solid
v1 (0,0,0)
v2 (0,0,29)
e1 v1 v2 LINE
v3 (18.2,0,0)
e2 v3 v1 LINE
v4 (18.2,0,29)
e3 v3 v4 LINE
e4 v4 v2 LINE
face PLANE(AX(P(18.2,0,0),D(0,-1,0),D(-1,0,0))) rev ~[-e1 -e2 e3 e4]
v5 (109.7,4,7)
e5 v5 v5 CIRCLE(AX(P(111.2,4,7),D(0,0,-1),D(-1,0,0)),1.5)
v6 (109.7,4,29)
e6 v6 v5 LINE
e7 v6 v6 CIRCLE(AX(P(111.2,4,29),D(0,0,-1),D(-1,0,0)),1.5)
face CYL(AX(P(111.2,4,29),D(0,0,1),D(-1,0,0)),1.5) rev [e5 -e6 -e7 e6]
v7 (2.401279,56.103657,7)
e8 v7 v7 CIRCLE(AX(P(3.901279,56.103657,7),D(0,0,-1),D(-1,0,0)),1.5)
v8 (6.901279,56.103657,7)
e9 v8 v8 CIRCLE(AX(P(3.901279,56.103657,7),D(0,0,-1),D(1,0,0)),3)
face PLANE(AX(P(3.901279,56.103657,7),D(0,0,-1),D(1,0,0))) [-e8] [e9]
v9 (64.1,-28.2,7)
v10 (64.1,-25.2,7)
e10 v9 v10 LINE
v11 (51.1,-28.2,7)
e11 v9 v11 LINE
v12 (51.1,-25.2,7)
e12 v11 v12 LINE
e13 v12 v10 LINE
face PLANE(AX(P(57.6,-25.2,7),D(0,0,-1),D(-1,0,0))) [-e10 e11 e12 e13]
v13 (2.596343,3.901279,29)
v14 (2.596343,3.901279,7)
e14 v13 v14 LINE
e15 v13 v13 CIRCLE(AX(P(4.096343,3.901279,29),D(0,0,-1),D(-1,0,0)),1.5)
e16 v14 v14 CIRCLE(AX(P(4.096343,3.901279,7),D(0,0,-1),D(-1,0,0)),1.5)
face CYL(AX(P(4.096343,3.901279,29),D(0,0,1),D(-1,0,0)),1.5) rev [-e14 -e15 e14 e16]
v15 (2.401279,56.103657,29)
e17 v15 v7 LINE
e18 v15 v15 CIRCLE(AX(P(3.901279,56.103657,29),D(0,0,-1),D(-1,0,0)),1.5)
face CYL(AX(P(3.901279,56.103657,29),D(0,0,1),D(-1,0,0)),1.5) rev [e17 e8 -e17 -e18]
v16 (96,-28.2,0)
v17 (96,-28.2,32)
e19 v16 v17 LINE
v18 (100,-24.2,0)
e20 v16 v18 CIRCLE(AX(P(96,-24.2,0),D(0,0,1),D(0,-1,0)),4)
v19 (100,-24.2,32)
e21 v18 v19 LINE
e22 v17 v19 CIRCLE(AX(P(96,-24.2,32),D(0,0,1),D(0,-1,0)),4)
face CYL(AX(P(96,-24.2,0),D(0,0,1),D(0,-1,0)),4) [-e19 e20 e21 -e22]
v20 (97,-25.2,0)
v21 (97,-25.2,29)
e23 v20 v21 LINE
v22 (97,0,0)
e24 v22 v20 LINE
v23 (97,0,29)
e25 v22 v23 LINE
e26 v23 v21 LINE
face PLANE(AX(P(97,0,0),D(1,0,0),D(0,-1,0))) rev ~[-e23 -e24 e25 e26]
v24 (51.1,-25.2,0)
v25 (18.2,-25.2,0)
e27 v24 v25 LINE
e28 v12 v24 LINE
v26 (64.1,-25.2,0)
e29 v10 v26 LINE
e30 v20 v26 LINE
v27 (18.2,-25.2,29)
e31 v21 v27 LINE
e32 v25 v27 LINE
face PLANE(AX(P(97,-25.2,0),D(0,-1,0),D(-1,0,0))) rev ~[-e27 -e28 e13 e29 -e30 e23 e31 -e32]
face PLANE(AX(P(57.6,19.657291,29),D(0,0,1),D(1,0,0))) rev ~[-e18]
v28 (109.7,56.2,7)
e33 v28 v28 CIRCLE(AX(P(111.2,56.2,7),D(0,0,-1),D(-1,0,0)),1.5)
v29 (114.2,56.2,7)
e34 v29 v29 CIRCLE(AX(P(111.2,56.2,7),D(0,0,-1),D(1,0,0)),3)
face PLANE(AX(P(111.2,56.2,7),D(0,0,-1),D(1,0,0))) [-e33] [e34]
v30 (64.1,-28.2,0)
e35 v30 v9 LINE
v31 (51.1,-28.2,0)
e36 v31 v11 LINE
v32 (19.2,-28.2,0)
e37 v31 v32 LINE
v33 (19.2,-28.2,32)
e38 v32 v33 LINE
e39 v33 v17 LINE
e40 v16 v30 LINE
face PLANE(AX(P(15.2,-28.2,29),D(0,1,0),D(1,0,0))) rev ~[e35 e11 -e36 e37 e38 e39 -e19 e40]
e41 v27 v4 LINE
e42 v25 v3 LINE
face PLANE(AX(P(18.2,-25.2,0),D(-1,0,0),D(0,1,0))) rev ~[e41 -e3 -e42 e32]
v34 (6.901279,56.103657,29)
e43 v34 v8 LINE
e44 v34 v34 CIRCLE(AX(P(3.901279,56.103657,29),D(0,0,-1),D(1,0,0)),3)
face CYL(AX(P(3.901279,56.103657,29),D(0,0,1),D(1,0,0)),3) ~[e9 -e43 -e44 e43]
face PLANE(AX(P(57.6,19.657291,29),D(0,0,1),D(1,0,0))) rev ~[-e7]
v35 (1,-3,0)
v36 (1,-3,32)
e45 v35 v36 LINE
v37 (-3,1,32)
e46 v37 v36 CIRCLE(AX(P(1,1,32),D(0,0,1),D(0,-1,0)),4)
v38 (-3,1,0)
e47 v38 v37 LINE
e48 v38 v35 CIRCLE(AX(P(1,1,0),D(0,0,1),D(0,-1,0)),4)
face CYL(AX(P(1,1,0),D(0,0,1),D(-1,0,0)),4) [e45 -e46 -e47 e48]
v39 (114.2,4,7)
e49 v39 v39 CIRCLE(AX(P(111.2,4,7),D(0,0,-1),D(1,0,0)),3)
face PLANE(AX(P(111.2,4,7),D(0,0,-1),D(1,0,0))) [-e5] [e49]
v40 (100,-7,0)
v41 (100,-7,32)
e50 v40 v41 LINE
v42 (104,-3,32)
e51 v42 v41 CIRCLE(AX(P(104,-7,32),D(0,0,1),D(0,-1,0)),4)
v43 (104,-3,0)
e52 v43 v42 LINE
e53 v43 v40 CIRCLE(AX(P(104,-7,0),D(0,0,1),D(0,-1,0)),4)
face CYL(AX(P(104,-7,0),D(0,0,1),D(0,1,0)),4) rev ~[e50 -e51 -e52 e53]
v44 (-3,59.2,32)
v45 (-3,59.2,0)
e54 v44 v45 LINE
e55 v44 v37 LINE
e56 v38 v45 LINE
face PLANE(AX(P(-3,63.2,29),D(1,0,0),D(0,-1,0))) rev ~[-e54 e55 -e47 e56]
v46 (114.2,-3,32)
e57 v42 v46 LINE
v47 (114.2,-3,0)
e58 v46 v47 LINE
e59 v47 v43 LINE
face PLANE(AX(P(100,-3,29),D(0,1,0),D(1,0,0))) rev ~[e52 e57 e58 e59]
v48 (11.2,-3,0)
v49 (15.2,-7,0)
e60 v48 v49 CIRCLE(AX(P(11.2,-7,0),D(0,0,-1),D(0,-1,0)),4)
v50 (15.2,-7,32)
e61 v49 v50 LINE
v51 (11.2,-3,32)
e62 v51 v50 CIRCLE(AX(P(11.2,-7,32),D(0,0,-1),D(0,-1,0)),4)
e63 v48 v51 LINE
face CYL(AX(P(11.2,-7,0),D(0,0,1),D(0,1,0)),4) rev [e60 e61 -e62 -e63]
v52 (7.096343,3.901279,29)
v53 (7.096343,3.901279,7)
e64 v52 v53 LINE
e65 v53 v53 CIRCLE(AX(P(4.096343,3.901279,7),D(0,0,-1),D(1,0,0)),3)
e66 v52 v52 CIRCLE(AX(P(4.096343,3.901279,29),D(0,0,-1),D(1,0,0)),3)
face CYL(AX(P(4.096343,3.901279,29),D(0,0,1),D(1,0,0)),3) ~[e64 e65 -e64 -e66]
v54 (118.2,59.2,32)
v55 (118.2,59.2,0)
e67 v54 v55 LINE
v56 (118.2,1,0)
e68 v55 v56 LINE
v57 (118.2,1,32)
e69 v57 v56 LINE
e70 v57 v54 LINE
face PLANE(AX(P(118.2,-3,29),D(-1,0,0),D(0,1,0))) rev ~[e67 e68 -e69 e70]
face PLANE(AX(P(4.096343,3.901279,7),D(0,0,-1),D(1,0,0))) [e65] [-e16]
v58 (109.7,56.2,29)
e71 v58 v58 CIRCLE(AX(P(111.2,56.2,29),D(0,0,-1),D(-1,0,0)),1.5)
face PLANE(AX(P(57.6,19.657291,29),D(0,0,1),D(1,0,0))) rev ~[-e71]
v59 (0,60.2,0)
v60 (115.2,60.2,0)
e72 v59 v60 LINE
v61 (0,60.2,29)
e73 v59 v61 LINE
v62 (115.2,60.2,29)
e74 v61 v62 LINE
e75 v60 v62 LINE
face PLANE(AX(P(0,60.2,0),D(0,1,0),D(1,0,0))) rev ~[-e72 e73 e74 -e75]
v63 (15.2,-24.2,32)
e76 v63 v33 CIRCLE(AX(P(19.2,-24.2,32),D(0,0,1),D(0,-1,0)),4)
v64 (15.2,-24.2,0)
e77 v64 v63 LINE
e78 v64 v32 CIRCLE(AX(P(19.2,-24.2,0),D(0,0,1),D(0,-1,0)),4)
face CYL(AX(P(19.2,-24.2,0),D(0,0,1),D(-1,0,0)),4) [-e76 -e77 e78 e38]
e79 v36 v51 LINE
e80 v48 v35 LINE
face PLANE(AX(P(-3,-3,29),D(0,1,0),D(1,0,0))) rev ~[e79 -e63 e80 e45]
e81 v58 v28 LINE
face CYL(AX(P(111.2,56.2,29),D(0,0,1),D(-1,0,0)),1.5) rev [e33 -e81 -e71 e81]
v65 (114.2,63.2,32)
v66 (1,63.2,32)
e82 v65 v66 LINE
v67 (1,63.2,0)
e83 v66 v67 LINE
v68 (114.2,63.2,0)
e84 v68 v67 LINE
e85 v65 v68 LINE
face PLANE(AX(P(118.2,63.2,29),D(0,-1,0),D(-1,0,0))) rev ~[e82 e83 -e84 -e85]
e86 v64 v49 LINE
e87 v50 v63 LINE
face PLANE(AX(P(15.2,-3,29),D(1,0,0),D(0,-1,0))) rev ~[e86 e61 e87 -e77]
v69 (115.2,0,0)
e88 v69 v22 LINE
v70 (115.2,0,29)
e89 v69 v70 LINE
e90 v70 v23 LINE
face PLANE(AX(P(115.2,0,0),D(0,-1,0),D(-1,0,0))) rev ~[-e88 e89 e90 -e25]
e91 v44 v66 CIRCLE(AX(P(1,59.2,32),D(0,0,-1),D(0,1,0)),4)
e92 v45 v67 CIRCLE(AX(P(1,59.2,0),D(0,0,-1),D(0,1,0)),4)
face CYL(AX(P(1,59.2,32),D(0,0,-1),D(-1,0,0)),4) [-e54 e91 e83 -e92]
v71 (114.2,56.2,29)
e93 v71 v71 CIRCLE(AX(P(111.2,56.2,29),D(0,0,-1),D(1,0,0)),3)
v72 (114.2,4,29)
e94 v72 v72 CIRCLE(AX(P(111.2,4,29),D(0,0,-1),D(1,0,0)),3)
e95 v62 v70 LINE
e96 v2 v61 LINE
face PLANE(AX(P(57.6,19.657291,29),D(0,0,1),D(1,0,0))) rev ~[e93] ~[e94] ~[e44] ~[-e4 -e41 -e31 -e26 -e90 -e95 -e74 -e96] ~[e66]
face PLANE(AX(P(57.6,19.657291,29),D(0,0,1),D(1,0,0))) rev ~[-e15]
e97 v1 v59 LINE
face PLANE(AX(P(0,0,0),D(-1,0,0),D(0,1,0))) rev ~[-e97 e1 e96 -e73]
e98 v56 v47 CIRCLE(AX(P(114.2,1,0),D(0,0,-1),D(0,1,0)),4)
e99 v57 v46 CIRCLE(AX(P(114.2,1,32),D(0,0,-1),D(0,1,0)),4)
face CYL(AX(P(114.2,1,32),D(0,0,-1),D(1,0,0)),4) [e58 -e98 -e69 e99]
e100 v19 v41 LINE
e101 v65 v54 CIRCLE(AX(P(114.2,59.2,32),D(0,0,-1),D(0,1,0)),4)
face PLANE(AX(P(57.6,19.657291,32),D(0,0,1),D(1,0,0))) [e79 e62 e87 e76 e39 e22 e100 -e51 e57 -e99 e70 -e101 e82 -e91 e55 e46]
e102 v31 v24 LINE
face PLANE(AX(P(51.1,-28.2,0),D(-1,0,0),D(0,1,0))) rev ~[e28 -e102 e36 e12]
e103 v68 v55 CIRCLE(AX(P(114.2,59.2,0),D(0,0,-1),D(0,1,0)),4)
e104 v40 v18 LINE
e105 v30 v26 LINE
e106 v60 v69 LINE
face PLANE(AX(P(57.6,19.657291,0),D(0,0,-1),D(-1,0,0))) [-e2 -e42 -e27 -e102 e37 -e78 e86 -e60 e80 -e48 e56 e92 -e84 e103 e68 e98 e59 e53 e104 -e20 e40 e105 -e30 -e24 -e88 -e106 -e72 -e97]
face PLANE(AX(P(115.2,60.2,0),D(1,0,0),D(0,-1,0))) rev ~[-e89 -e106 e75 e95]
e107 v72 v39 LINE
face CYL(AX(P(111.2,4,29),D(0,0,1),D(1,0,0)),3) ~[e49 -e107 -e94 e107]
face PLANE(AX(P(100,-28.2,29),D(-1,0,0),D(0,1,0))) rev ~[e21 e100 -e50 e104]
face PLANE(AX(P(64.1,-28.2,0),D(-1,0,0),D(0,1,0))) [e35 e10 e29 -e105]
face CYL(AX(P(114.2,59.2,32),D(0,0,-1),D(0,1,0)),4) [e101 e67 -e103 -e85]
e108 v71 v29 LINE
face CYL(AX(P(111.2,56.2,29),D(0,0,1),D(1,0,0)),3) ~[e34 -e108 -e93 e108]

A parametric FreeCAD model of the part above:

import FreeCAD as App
import Part
import Sketcher
Q = App.Units.Quantity


def edges_at(feature, points):
    """Names of the edges that pass closest to the given points."""
    edges = feature.Shape.Edges
    near = lambda p: min(range(len(edges)), key=lambda i: edges[i].distToShape(Part.Vertex(*p))[0])
    return sorted({f"Edge{near(p) + 1}" for p in points})

doc = App.newDocument("Part")
body = doc.addObject("PartDesign::Body", "Body")

sketch1 = doc.addObject("Sketcher::SketchObject", "Sketch")
body.addObject(sketch1)
sketch1.AttachmentSupport = (doc.XY_Plane, [""])
sketch1.MapMode = "FlatFace"
sketch1.addGeometry([
    Part.LineSegment(App.Vector(118, 63, 0), App.Vector(-3, 63, 0)),
    Part.LineSegment(App.Vector(-3, 63, 0), App.Vector(-3, -3, 0)),
    Part.LineSegment(App.Vector(-3, -3, 0), App.Vector(15, -3, 0)),
    Part.LineSegment(App.Vector(15, -3, 0), App.Vector(15, -28, 0)),
    Part.LineSegment(App.Vector(15, -28, 0), App.Vector(100, -28, 0)),
    Part.LineSegment(App.Vector(100, -28, 0), App.Vector(100, -3, 0)),
    Part.LineSegment(App.Vector(100, -3, 0), App.Vector(118, -3, 0)),
    Part.LineSegment(App.Vector(118, -3, 0), App.Vector(118, 63, 0)),
    Part.LineSegment(App.Vector(0, 0, 0), App.Vector(0, 60, 0)),
    Part.LineSegment(App.Vector(0, 60, 0), App.Vector(115, 60, 0)),
    Part.LineSegment(App.Vector(115, 60, 0), App.Vector(115, 0, 0)),
    Part.LineSegment(App.Vector(115, 0, 0), App.Vector(97, 0, 0)),
    Part.LineSegment(App.Vector(97, 0, 0), App.Vector(97, -25, 0)),
    Part.LineSegment(App.Vector(97, -25, 0), App.Vector(18, -25, 0)),
    Part.LineSegment(App.Vector(18, -25, 0), App.Vector(18, 0, 0)),
    Part.LineSegment(App.Vector(18, 0, 0), App.Vector(0, 0, 0)),
], False)
sketch1.addConstraint([
    Sketcher.Constraint("Coincident", 0, 2, 1, 1),
    Sketcher.Constraint("Coincident", 1, 2, 2, 1),
    Sketcher.Constraint("Coincident", 2, 2, 3, 1),
    Sketcher.Constraint("Coincident", 3, 2, 4, 1),
    Sketcher.Constraint("Coincident", 4, 2, 5, 1),
    Sketcher.Constraint("Coincident", 5, 2, 6, 1),
    Sketcher.Constraint("Coincident", 6, 2, 7, 1),
    Sketcher.Constraint("Coincident", 7, 2, 0, 1),
    Sketcher.Constraint("Coincident", 8, 2, 9, 1),
    Sketcher.Constraint("Coincident", 9, 2, 10, 1),
    Sketcher.Constraint("Coincident", 10, 2, 11, 1),
    Sketcher.Constraint("Coincident", 11, 2, 12, 1),
    Sketcher.Constraint("Coincident", 12, 2, 13, 1),
    Sketcher.Constraint("Coincident", 13, 2, 14, 1),
    Sketcher.Constraint("Coincident", 14, 2, 15, 1),
    Sketcher.Constraint("Coincident", 15, 2, 8, 1),
    Sketcher.Constraint("Horizontal", 0),
    Sketcher.Constraint("Vertical", 1),
    Sketcher.Constraint("Horizontal", 2),
    Sketcher.Constraint("Vertical", 3),
    Sketcher.Constraint("Horizontal", 4),
    Sketcher.Constraint("Vertical", 5),
    Sketcher.Constraint("Horizontal", 6),
    Sketcher.Constraint("Vertical", 7),
    Sketcher.Constraint("Vertical", 8),
    Sketcher.Constraint("Horizontal", 9),
    Sketcher.Constraint("Vertical", 10),
    Sketcher.Constraint("Horizontal", 11),
    Sketcher.Constraint("Vertical", 12),
    Sketcher.Constraint("Horizontal", 13),
    Sketcher.Constraint("Vertical", 14),
    Sketcher.Constraint("Horizontal", 15),
    Sketcher.Constraint("Coincident", 15, 2, -1, 1),
    Sketcher.Constraint("PointOnObject", 10, 2, -1),
    Sketcher.Constraint("Horizontal", 2, 2, 5, 2),
    Sketcher.Constraint("Equal", 2, 6),
    Sketcher.Constraint("Equal", 6, 11),
    Sketcher.Constraint("Equal", 11, 15),
    Sketcher.Constraint("Equal", 5, 12),
    Sketcher.Constraint("DistanceX", 0, 2, 0, 1, Q("121.2 mm")),
    Sketcher.Constraint("DistanceX", 2, 1, 2, 2, Q("18.2 mm")),
    Sketcher.Constraint("DistanceX", 9, 1, 9, 2, Q("115.2 mm")),
    Sketcher.Constraint("DistanceY", 1, 2, 1, 1, Q("66.2 mm")),
    Sketcher.Constraint("DistanceY", 3, 2, 3, 1, Q("25.2 mm")),
    Sketcher.Constraint("DistanceY", 8, 1, 8, 2, Q("60.2 mm")),
    Sketcher.Constraint("DistanceX", 0, 2, -1, 1, Q("3 mm")),
    Sketcher.Constraint("DistanceY", 1, 2, -1, 1, Q("3 mm")),
])
pad1 = doc.addObject("PartDesign::Pad", "Pad")
body.addObject(pad1)
pad1.Profile = sketch1
pad1.Length = 29

sketch2 = doc.addObject("Sketcher::SketchObject", "Sketch001")
body.addObject(sketch2)
sketch2.AttachmentSupport = (doc.XY_Plane, [""])
sketch2.MapMode = "FlatFace"
sketch2.AttachmentOffset = App.Placement(App.Vector(0, 0, 29), App.Rotation())
sketch2.addGeometry([
    Part.LineSegment(App.Vector(-3, 63, 0), App.Vector(-3, -3, 0)),
    Part.LineSegment(App.Vector(-3, -3, 0), App.Vector(15, -3, 0)),
    Part.LineSegment(App.Vector(15, -3, 0), App.Vector(15, -28, 0)),
    Part.LineSegment(App.Vector(15, -28, 0), App.Vector(100, -28, 0)),
    Part.LineSegment(App.Vector(100, -28, 0), App.Vector(100, -3, 0)),
    Part.LineSegment(App.Vector(100, -3, 0), App.Vector(118, -3, 0)),
    Part.LineSegment(App.Vector(118, -3, 0), App.Vector(118, 63, 0)),
    Part.LineSegment(App.Vector(118, 63, 0), App.Vector(-3, 63, 0)),
], False)
sketch2.addConstraint([
    Sketcher.Constraint("Coincident", 0, 2, 1, 1),
    Sketcher.Constraint("Coincident", 1, 2, 2, 1),
    Sketcher.Constraint("Coincident", 2, 2, 3, 1),
    Sketcher.Constraint("Coincident", 3, 2, 4, 1),
    Sketcher.Constraint("Coincident", 4, 2, 5, 1),
    Sketcher.Constraint("Coincident", 5, 2, 6, 1),
    Sketcher.Constraint("Coincident", 6, 2, 7, 1),
    Sketcher.Constraint("Coincident", 7, 2, 0, 1),
    Sketcher.Constraint("Vertical", 0),
    Sketcher.Constraint("Horizontal", 1),
    Sketcher.Constraint("Vertical", 2),
    Sketcher.Constraint("Horizontal", 3),
    Sketcher.Constraint("Vertical", 4),
    Sketcher.Constraint("Horizontal", 5),
    Sketcher.Constraint("Vertical", 6),
    Sketcher.Constraint("Horizontal", 7),
    Sketcher.Constraint("Horizontal", 1, 2, 4, 2),
    Sketcher.Constraint("Equal", 1, 5),
    Sketcher.Constraint("DistanceX", 1, 1, 1, 2, Q("18.2 mm")),
    Sketcher.Constraint("DistanceX", 3, 1, 3, 2, Q("84.8 mm")),
    Sketcher.Constraint("DistanceY", 0, 2, 0, 1, Q("66.2 mm")),
    Sketcher.Constraint("DistanceY", 2, 2, 2, 1, Q("25.2 mm")),
    Sketcher.Constraint("DistanceX", 0, 2, -1, 1, Q("3 mm")),
    Sketcher.Constraint("DistanceY", 0, 2, -1, 1, Q("3 mm")),
])
pad2 = doc.addObject("PartDesign::Pad", "Pad001")
body.addObject(pad2)
pad2.Profile = sketch2
pad2.Length = 3

sketch3 = doc.addObject("Sketcher::SketchObject", "Sketch002")
body.addObject(sketch3)
sketch3.AttachmentSupport = (doc.XY_Plane, [""])
sketch3.MapMode = "FlatFace"
sketch3.AttachmentOffset = App.Placement(App.Vector(0, 0, 29), App.Rotation())
sketch3.addGeometry([
    Part.Circle(App.Vector(111.2, 4, 0), App.Vector(0, 0, 1), 3),
    Part.Circle(App.Vector(111.2, 4, 0), App.Vector(0, 0, 1), 1.5),
    Part.Circle(App.Vector(111.2, 56.2, 0), App.Vector(0, 0, 1), 3),
    Part.Circle(App.Vector(111.2, 56.2, 0), App.Vector(0, 0, 1), 1.5),
    Part.Circle(App.Vector(3.9, 56.1, 0), App.Vector(0, 0, 1), 3),
    Part.Circle(App.Vector(3.9, 56.1, 0), App.Vector(0, 0, 1), 1.5),
    Part.Circle(App.Vector(4.1, 3.9, 0), App.Vector(0, 0, 1), 3),
    Part.Circle(App.Vector(4.1, 3.9, 0), App.Vector(0, 0, 1), 1.5),
], False)
sketch3.addConstraint([
    Sketcher.Constraint("Coincident", 1, 3, 0, 3),
    Sketcher.Constraint("Coincident", 3, 3, 2, 3),
    Sketcher.Constraint("Coincident", 5, 3, 4, 3),
    Sketcher.Constraint("Coincident", 7, 3, 6, 3),
    Sketcher.Constraint("Equal", 0, 2),
    Sketcher.Constraint("Equal", 1, 3),
    Sketcher.Constraint("Equal", 2, 4),
    Sketcher.Constraint("Equal", 3, 5),
    Sketcher.Constraint("Equal", 4, 6),
    Sketcher.Constraint("Equal", 5, 7),
    Sketcher.Constraint("Vertical", 1, 3, 2, 3),
    Sketcher.Constraint("Diameter", 0, Q("6 mm")),
    Sketcher.Constraint("Diameter", 1, Q("3 mm")),
    Sketcher.Constraint("DistanceY", -1, 1, 0, 3, Q("4 mm")),
    Sketcher.Constraint("DistanceX", -1, 1, 0, 3, Q("111.2 mm")),
    Sketcher.Constraint("DistanceY", -1, 1, 2, 3, Q("56.2 mm")),
    Sketcher.Constraint("DistanceX", -1, 1, 4, 3, Q("3.901279 mm")),
    Sketcher.Constraint("DistanceY", -1, 1, 6, 3, Q("3.901279 mm")),
    Sketcher.Constraint("DistanceY", 6, 3, 4, 3, Q("52.202378 mm")),
    Sketcher.Constraint("DistanceX", -1, 1, 6, 3, Q("4.096343 mm")),
])
pad3 = doc.addObject("PartDesign::Pad", "Pad002")
body.addObject(pad3)
pad3.Profile = sketch3
pad3.Length = 22
pad3.Reversed = True

sketch4 = doc.addObject("Sketcher::SketchObject", "Sketch003")
body.addObject(sketch4)
sketch4.AttachmentSupport = (doc.XY_Plane, [""])
sketch4.MapMode = "FlatFace"
sketch4.addGeometry([
    Part.LineSegment(App.Vector(64, -22, 0), App.Vector(64, -28, 0)),
    Part.LineSegment(App.Vector(64, -28, 0), App.Vector(51, -28, 0)),
    Part.LineSegment(App.Vector(51, -28, 0), App.Vector(51, -22, 0)),
    Part.LineSegment(App.Vector(51, -22, 0), App.Vector(64, -22, 0)),
], False)
sketch4.addConstraint([
    Sketcher.Constraint("Coincident", 0, 2, 1, 1),
    Sketcher.Constraint("Coincident", 1, 2, 2, 1),
    Sketcher.Constraint("Coincident", 2, 2, 3, 1),
    Sketcher.Constraint("Coincident", 3, 2, 0, 1),
    Sketcher.Constraint("Vertical", 0),
    Sketcher.Constraint("Horizontal", 1),
    Sketcher.Constraint("Vertical", 2),
    Sketcher.Constraint("Horizontal", 3),
    Sketcher.Constraint("DistanceX", 1, 2, 1, 1, Q("13 mm")),
    Sketcher.Constraint("DistanceY", 0, 2, 0, 1, Q("6 mm")),
    Sketcher.Constraint("DistanceX", -1, 1, 0, 2, Q("64.1 mm")),
    Sketcher.Constraint("DistanceY", 0, 2, -1, 1, Q("28.2 mm")),
])
pocket1 = doc.addObject("PartDesign::Pocket", "Pocket")
body.addObject(pocket1)
pocket1.Profile = sketch4
pocket1.Length = 7
pocket1.Reversed = True
doc.recompute()

fillet = doc.addObject("PartDesign::Fillet", "Fillet")
body.addObject(fillet)
fillet.Base = (pocket1, edges_at(pocket1, [
    (118.2, 63.2, 16),
    (118.2, -3, 16),
    (100, -28.2, 16),
    (15.2, -28.2, 16),
    (-3, -3, 16),
    (-3, 63.2, 16),
]))
fillet.Radius = 4
doc.recompute()

fillet2 = doc.addObject("PartDesign::Fillet", "Fillet001")
body.addObject(fillet2)
fillet2.Base = (fillet, edges_at(fillet, [(100, -3, 16), (15.2, -3, 16)]))
fillet2.Radius = 4

doc.recompute()
